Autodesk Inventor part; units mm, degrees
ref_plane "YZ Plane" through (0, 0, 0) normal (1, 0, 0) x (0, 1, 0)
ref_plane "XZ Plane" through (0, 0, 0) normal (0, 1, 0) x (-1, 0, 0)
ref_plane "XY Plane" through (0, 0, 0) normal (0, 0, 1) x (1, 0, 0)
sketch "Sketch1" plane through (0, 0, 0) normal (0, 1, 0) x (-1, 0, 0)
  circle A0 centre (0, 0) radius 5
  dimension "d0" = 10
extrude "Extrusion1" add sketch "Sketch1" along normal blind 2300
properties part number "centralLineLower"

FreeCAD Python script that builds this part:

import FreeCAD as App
import Part
import Sketcher

doc = App.newDocument("Part")
body = doc.addObject("PartDesign::Body", "Body")

# Sketch on XZ plane
sketch1 = body.newObject("Sketcher::SketchObject", "Sketch")
sketch1.AttachmentSupport = (doc.getObject("XZ_Plane"), [""])
sketch1.MapMode = "FlatFace"
sketch1.addGeometry(Part.Circle(App.Vector(0, 0, 0), App.Vector(0, 0, 1), 5), False)
sketch1.addConstraint(Sketcher.Constraint("Coincident", 0, 3, -1, 1))
sketch1.addConstraint(Sketcher.Constraint("Diameter", 0, 10.0))
pad1 = body.newObject("PartDesign::Pad", "Pad")
pad1.Profile = sketch1
pad1.Length = 2300
pad1.Reversed = True

doc.recompute()
